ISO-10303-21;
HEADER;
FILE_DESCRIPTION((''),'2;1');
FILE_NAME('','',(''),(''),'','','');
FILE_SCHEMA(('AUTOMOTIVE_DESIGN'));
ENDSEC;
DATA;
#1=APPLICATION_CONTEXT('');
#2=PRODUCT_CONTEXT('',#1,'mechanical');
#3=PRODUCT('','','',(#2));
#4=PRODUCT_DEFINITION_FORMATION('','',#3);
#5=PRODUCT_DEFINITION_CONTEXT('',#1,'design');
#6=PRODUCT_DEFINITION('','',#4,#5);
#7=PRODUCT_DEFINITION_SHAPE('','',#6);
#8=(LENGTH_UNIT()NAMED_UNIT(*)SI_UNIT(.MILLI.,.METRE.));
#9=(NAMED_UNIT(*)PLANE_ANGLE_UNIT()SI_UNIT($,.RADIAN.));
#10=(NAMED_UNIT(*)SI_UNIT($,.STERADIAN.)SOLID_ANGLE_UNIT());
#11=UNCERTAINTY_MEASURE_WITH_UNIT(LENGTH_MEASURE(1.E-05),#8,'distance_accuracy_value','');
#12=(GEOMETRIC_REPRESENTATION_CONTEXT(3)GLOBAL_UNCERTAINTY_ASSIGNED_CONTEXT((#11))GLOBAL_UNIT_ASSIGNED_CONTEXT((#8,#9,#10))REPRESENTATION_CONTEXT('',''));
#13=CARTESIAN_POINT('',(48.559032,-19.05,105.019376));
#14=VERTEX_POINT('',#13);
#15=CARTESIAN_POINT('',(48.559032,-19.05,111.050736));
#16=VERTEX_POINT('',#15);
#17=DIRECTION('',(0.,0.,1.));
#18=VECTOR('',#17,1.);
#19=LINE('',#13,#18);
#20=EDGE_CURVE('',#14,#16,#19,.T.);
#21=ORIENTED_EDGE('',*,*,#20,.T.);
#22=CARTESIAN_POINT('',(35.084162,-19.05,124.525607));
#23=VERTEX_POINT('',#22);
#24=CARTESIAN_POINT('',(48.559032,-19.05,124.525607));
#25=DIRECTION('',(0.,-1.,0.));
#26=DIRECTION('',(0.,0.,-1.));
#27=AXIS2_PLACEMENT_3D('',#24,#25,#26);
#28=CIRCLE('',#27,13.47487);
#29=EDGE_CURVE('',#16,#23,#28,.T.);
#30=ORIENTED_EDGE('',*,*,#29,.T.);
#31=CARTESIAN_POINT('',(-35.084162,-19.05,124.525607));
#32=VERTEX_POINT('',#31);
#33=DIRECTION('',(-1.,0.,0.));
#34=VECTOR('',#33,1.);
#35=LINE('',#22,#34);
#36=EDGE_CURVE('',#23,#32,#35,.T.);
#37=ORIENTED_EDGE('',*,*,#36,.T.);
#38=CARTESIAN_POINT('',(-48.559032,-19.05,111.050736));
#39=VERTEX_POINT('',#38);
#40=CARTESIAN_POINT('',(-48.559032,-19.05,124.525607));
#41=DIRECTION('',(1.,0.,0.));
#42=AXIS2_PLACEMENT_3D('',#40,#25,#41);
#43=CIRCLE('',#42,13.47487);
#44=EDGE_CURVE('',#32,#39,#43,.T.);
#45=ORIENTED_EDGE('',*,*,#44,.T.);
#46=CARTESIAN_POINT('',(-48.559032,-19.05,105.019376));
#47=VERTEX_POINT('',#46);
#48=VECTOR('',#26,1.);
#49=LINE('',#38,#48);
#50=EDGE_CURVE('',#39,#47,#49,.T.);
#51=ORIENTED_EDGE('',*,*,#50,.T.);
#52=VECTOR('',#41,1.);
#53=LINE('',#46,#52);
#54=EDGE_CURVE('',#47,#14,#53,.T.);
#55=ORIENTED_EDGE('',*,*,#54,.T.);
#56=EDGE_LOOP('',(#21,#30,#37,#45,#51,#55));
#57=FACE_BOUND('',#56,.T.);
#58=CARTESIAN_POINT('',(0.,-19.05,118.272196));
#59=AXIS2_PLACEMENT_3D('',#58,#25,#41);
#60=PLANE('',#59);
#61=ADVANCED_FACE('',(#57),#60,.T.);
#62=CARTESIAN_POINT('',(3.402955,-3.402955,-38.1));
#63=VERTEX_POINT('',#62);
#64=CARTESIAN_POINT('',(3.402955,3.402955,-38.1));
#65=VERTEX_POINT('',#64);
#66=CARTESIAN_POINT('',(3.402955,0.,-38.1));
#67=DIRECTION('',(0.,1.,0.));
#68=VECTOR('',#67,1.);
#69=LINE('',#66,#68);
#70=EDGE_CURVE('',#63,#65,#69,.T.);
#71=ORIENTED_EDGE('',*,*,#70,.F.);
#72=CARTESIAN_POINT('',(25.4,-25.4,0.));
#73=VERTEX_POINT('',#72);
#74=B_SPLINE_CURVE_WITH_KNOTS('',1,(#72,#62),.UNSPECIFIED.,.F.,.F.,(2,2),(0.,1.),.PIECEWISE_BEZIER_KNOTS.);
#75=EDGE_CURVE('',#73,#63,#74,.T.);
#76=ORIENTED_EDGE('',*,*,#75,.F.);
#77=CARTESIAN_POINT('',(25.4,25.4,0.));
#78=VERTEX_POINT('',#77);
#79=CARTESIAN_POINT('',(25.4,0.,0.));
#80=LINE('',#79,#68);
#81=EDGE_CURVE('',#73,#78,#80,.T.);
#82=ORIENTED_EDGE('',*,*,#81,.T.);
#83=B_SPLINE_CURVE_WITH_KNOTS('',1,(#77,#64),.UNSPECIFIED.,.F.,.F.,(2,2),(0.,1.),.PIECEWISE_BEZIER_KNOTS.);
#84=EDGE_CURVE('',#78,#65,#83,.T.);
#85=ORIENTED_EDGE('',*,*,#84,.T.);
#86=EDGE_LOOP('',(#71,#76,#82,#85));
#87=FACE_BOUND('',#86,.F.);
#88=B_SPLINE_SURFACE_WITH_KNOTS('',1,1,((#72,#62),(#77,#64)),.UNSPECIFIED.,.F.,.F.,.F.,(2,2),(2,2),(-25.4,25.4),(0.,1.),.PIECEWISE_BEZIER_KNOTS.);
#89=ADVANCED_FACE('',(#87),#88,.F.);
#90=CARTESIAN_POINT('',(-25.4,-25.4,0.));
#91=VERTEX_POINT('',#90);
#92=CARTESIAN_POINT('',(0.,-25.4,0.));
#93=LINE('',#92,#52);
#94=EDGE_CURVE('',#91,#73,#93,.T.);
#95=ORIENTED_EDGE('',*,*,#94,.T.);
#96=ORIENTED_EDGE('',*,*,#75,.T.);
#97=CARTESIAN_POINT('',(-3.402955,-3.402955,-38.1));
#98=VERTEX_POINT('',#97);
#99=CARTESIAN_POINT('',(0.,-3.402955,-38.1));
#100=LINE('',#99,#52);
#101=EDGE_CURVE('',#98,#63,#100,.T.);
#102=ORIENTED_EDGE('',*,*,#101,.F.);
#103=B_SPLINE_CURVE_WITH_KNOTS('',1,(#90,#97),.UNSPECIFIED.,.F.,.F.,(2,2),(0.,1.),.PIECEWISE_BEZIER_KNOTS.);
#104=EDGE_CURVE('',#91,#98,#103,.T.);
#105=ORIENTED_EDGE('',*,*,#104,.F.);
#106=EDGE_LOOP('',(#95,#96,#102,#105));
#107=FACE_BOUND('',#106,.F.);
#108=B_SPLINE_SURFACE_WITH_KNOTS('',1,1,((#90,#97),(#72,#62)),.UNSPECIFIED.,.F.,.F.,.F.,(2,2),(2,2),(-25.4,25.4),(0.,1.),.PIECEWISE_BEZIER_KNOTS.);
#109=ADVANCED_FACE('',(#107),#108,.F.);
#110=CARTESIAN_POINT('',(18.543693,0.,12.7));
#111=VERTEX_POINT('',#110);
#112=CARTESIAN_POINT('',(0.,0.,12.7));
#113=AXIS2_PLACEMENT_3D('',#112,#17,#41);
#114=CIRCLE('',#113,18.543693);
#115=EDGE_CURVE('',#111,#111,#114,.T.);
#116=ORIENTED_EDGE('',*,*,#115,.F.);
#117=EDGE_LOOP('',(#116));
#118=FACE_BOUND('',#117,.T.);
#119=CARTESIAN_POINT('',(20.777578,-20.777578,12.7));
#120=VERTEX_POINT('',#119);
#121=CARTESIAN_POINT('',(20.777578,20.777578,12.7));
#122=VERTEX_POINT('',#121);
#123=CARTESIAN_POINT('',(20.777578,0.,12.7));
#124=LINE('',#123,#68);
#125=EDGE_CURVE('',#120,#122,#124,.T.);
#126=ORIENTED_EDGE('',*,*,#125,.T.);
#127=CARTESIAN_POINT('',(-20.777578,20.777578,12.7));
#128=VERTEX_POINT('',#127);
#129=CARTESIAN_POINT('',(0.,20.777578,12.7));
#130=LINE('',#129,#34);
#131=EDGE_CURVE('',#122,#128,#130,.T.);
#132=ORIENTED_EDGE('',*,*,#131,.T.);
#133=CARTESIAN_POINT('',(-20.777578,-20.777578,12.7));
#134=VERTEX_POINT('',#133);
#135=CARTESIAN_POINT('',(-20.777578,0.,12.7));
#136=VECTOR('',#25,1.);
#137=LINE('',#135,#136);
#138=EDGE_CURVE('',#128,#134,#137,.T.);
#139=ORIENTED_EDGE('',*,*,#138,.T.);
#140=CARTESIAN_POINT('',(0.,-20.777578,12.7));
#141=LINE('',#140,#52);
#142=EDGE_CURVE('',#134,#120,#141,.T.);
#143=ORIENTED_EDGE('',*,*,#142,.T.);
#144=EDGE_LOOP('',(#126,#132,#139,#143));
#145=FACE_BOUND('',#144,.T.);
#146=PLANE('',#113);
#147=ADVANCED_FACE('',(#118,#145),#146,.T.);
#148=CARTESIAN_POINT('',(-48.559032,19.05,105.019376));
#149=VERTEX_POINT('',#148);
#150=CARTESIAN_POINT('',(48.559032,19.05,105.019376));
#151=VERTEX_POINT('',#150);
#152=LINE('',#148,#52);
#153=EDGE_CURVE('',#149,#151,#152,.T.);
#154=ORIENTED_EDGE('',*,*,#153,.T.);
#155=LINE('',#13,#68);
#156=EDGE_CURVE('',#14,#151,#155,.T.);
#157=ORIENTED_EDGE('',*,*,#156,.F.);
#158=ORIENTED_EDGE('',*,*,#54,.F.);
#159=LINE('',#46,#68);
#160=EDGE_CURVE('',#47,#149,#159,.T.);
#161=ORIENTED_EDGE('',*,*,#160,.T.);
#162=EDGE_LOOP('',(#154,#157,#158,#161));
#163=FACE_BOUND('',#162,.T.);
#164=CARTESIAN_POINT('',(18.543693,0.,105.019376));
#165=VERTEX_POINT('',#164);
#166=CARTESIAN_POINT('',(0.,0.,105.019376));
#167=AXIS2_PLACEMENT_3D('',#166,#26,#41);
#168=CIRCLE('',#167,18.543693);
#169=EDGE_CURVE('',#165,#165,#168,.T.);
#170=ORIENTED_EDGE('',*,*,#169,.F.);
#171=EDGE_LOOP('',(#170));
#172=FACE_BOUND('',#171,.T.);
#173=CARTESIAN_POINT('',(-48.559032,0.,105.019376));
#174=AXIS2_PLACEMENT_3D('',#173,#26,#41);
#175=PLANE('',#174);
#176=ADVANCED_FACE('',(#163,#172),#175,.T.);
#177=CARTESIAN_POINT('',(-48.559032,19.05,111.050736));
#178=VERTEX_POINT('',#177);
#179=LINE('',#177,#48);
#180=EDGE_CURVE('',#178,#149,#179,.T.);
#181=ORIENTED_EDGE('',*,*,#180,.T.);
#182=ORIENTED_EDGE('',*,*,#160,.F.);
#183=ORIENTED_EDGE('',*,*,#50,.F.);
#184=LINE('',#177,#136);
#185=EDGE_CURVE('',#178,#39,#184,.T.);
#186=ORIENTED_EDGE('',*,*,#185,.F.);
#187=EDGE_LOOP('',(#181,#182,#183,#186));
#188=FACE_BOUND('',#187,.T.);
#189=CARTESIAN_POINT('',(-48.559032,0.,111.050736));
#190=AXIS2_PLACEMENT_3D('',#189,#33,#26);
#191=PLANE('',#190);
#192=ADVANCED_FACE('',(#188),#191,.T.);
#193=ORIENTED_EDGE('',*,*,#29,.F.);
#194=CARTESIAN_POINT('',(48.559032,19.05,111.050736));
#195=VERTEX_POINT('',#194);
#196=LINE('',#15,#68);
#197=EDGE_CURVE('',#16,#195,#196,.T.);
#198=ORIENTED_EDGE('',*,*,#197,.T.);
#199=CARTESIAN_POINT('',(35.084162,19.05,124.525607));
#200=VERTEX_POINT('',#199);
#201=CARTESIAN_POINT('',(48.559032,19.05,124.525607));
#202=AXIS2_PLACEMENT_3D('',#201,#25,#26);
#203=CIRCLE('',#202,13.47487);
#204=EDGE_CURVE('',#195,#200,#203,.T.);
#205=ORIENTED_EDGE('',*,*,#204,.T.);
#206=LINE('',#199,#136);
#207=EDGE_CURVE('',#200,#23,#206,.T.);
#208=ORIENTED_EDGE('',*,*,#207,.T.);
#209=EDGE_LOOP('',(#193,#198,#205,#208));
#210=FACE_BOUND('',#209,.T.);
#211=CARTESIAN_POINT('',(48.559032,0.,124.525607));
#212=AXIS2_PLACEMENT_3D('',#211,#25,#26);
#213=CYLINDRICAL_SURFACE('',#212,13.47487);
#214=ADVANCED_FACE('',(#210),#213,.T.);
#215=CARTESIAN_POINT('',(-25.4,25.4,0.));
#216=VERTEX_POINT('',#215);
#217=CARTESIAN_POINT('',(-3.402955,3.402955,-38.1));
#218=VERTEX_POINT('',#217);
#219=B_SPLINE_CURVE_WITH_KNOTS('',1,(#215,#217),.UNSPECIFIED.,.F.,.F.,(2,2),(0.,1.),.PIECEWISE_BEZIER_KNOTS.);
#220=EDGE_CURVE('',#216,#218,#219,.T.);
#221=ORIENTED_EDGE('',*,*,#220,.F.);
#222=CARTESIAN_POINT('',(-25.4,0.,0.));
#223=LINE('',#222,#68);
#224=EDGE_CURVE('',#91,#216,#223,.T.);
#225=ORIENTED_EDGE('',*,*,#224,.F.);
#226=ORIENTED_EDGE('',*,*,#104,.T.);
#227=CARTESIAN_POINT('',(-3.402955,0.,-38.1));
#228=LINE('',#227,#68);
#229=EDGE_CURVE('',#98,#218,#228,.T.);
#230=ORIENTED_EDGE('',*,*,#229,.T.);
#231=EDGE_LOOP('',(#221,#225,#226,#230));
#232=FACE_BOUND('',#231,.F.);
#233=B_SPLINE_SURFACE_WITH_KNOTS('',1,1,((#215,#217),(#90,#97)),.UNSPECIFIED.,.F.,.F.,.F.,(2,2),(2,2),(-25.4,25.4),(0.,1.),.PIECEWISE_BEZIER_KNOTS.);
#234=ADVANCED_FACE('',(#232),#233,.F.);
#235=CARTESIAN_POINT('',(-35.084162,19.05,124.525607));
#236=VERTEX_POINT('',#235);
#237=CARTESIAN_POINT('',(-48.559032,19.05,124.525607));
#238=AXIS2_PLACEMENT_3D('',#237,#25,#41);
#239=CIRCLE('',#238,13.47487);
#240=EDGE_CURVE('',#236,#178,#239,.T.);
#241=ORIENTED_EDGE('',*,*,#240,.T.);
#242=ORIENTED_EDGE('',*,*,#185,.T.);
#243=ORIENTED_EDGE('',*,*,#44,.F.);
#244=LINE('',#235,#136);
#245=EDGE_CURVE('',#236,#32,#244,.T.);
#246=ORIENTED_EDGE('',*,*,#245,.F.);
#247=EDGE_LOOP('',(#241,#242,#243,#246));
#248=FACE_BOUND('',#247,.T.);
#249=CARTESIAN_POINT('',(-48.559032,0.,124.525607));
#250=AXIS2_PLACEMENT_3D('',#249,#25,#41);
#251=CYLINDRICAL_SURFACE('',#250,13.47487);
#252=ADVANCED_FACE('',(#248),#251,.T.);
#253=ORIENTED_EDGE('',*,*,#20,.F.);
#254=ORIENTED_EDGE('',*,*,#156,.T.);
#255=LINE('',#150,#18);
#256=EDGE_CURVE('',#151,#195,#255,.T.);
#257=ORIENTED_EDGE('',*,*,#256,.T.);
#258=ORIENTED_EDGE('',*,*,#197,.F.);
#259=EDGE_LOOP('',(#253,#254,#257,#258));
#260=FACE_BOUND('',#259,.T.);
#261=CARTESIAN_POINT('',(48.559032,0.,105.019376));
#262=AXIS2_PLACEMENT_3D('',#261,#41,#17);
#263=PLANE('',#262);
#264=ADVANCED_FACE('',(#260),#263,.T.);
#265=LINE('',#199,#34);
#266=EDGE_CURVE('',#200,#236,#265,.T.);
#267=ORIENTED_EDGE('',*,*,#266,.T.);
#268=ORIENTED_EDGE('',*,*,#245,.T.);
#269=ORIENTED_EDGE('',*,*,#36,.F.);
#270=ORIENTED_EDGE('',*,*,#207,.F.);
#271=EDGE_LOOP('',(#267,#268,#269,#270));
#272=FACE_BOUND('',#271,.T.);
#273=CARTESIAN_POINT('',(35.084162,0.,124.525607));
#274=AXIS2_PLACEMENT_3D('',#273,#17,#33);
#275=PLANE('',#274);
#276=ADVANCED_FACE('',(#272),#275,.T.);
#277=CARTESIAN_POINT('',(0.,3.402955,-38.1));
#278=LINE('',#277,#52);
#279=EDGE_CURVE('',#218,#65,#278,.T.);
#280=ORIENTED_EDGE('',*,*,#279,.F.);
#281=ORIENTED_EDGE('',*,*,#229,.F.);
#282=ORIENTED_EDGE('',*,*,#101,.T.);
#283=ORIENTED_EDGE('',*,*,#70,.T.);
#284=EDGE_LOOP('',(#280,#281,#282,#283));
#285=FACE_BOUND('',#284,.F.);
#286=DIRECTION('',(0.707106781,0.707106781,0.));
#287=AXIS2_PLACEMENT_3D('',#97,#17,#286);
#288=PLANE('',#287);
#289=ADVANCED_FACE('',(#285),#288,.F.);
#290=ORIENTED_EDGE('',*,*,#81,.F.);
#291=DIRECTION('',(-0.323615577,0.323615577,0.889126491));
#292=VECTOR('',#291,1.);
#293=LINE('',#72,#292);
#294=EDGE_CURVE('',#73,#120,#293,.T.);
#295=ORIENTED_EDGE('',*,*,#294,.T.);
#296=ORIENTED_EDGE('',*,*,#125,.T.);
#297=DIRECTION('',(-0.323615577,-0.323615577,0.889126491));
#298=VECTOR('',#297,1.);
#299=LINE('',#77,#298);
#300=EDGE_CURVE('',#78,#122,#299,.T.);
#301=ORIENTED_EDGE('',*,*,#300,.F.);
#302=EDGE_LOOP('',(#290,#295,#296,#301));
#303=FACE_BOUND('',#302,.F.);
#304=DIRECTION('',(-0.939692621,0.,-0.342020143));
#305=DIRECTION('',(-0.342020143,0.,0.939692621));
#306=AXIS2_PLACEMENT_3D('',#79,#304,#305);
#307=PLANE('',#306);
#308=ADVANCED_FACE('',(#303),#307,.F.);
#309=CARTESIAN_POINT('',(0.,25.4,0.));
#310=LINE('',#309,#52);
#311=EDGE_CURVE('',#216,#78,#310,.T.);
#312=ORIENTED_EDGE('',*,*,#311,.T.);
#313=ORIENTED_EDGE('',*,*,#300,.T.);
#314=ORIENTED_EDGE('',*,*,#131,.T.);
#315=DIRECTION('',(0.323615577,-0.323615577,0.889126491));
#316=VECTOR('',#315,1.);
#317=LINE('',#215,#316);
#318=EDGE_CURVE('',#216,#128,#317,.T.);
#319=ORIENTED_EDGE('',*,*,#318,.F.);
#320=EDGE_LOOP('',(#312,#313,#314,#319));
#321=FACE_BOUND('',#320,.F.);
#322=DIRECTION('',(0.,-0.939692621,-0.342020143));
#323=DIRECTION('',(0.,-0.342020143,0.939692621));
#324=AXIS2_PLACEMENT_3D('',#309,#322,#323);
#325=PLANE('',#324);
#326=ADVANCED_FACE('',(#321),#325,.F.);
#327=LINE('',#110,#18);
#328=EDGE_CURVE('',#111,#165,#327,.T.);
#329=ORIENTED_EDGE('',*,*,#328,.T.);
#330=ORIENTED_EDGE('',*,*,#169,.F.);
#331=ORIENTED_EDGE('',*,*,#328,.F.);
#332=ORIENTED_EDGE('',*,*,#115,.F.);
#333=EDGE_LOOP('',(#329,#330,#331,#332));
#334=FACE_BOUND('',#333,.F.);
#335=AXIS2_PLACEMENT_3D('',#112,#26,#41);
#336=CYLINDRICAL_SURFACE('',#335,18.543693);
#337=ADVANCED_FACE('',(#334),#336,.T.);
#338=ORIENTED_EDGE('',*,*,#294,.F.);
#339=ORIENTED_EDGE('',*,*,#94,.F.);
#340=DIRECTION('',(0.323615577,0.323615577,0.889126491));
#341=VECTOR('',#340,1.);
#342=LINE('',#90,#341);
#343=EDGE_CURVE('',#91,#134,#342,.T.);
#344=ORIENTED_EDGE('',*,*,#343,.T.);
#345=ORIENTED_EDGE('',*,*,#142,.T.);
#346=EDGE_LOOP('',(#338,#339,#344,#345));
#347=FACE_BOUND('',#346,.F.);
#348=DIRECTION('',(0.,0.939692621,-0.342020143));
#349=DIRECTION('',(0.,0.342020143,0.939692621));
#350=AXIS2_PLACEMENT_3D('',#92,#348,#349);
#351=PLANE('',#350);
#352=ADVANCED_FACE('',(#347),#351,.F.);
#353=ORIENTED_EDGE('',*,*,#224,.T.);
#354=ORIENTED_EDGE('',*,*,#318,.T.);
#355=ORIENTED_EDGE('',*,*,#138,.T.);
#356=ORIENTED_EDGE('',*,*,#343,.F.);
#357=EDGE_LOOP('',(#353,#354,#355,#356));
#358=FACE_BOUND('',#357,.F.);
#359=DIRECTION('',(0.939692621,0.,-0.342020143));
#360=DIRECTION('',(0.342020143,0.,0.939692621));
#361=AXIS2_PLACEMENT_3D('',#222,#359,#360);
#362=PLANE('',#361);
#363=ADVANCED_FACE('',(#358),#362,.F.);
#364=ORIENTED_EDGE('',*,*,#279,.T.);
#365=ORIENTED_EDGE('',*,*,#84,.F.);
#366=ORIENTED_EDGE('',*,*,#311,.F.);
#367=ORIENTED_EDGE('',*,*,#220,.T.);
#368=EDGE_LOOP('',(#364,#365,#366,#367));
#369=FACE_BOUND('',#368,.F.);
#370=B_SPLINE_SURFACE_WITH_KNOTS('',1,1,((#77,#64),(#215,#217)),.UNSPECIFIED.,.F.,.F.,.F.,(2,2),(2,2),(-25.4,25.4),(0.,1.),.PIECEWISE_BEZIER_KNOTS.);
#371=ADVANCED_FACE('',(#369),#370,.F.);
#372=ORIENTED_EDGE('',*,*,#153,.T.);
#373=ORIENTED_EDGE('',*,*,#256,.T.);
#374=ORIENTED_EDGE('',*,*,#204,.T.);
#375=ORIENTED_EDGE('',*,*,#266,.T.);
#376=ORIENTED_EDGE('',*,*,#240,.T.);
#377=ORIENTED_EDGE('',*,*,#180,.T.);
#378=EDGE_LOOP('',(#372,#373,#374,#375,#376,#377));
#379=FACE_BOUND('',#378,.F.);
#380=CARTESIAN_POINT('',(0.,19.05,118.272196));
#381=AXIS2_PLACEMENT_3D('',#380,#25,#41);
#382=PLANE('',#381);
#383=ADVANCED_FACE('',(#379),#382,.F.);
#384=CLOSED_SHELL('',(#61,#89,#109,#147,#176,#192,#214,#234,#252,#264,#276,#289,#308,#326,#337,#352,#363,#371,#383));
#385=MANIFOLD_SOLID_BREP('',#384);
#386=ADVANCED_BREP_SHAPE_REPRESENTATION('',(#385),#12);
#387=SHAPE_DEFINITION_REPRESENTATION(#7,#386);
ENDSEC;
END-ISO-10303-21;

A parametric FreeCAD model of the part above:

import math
import FreeCAD as App
import Part
import Sketcher

V = App.Vector
Q = App.Units.Quantity


def add_polygon(sketch, points):
    """Adds a closed chain of lines whose ends are joined by coincident constraints."""
    first, n = sketch.GeometryCount, len(points)
    for a, b in zip(points, points[1:] + points[:1]):
        sketch.addGeometry(Part.LineSegment(App.Vector(*a, 0), App.Vector(*b, 0)), False)
    for i in range(n):
        sketch.addConstraint(Sketcher.Constraint("Coincident", first + i, 2, first + (i + 1) % n, 1))

doc = App.newDocument("Part")
body = doc.addObject("PartDesign::Body", "Body")

sketch1 = body.newObject("Sketcher::SketchObject", "Sketch")
sketch1.AttachmentSupport = (doc.getObject("XY_Plane"), [""])
sketch1.MapMode = "FlatFace"
add_polygon(sketch1, [(-25, 25), (-25, -25), (25, -25), (25, 25)])
sketch1.addConstraint(Sketcher.Constraint("Vertical", 0))
sketch1.addConstraint(Sketcher.Constraint("Horizontal", 1))
sketch1.addConstraint(Sketcher.Constraint("Vertical", 2))
sketch1.addConstraint(Sketcher.Constraint("Horizontal", 3))
sketch1.addConstraint(Sketcher.Constraint("Symmetric", 0, 2, 2, 2, -1, 1))
sketch1.addConstraint(Sketcher.Constraint("Equal", 3, 0))
sketch1.addConstraint(Sketcher.Constraint("DistanceX", 1, 1, 1, 2, Q("2 in")))
pad1 = body.newObject("PartDesign::Pad", "Pad")
pad1.Profile = sketch1
pad1.Length = Q("1.5 in")
pad1.Reversed = True
pad1.TaperAngle = -30

sketch2 = body.newObject("Sketcher::SketchObject", "Sketch001")
sketch2.AttachmentSupport = (doc.getObject("XY_Plane"), [""])
sketch2.MapMode = "FlatFace"
add_polygon(sketch2, [(-25, 25), (-25, -25), (25, -25), (25, 25)])
sketch2.addConstraint(Sketcher.Constraint("Vertical", 0))
sketch2.addConstraint(Sketcher.Constraint("Horizontal", 1))
sketch2.addConstraint(Sketcher.Constraint("Vertical", 2))
sketch2.addConstraint(Sketcher.Constraint("Horizontal", 3))
sketch2.addConstraint(Sketcher.Constraint("Symmetric", 0, 2, 2, 2, -1, 1))
sketch2.addConstraint(Sketcher.Constraint("Equal", 3, 0))
sketch2.addConstraint(Sketcher.Constraint("DistanceX", 1, 1, 1, 2, Q("2 in")))
pad2 = body.newObject("PartDesign::Pad", "Pad001")
pad2.Profile = sketch2
pad2.Length = Q("0.5 in")
pad2.TaperAngle = -20

sketch3 = body.newObject("Sketcher::SketchObject", "Sketch002")
sketch3.AttachmentSupport = (doc.getObject("XY_Plane"), [""])
sketch3.MapMode = "FlatFace"
sketch3.AttachmentOffset = App.Placement(V(0, 0, 0.5 * 25.4), App.Rotation())
sketch3.addGeometry(Part.Circle(V(0, 0, 0), V(0, 0, 1), 19), False)
sketch3.addConstraint(Sketcher.Constraint("Coincident", 0, 3, -1, 1))
sketch3.addConstraint(Sketcher.Constraint("Diameter", 0, 37.087386))
pad3 = body.newObject("PartDesign::Pad", "Pad002")
pad3.Profile = sketch3
pad3.Length = Q("4 in")

sketch4 = body.newObject("Sketcher::SketchObject", "Sketch003")
sketch4.AttachmentSupport = (doc.getObject("XZ_Plane"), [""])
sketch4.MapMode = "FlatFace"
sketch4.addGeometry(Part.ArcOfCircle(Part.Circle(V(49, 125, 0), V(0, 0, 1), 13), math.radians(-90), math.radians(180)), False)
sketch4.addGeometry(Part.LineSegment(V(35, 125, 0), V(-35, 125, 0)), False)
sketch4.addGeometry(Part.ArcOfCircle(Part.Circle(V(-49, 125, 0), V(0, 0, 1), 13), math.radians(0), math.radians(270)), False)
sketch4.addGeometry(Part.LineSegment(V(-49, 111, 0), V(-49, 105, 0)), False)
sketch4.addGeometry(Part.LineSegment(V(-49, 105, 0), V(49, 105, 0)), False)
sketch4.addGeometry(Part.LineSegment(V(49, 105, 0), V(49, 111, 0)), False)
sketch4.addConstraint(Sketcher.Constraint("Coincident", 0, 2, 1, 1))
sketch4.addConstraint(Sketcher.Constraint("Coincident", 1, 2, 2, 1))
sketch4.addConstraint(Sketcher.Constraint("Coincident", 2, 2, 3, 1))
sketch4.addConstraint(Sketcher.Constraint("Coincident", 3, 2, 4, 1))
sketch4.addConstraint(Sketcher.Constraint("Coincident", 4, 2, 5, 1))
sketch4.addConstraint(Sketcher.Constraint("Coincident", 5, 2, 0, 1))
sketch4.addConstraint(Sketcher.Constraint("Horizontal", 1))
sketch4.addConstraint(Sketcher.Constraint("Vertical", 3))
sketch4.addConstraint(Sketcher.Constraint("Horizontal", 4))
sketch4.addConstraint(Sketcher.Constraint("Vertical", 5))
sketch4.addConstraint(Sketcher.Constraint("Equal", 0, 2))
sketch4.addConstraint(Sketcher.Constraint("Symmetric", 0, 3, 2, 3, -2))
sketch4.addConstraint(Sketcher.Constraint("Horizontal", 2, 3, 0, 2))
sketch4.addConstraint(Sketcher.Constraint("Vertical", 0, 3, 4, 2))
sketch4.addConstraint(Sketcher.Constraint("Radius", 0, 13.47487))
sketch4.addConstraint(Sketcher.Constraint("DistanceY", 3, 2, 3, 1, 6.031361))
sketch4.addConstraint(Sketcher.Constraint("DistanceX", 1, 2, 1, 1, 70.168324))
sketch4.addConstraint(Sketcher.Constraint("DistanceX", 4, 1, 4, 2, 97.118065))
sketch4.addConstraint(Sketcher.Constraint("DistanceY", -1, 1, 0, 3, 124.525607))
pad4 = body.newObject("PartDesign::Pad", "Pad003")
pad4.Profile = sketch4
pad4.Length = Q("1.5 in")
pad4.Midplane = True

doc.recompute()
